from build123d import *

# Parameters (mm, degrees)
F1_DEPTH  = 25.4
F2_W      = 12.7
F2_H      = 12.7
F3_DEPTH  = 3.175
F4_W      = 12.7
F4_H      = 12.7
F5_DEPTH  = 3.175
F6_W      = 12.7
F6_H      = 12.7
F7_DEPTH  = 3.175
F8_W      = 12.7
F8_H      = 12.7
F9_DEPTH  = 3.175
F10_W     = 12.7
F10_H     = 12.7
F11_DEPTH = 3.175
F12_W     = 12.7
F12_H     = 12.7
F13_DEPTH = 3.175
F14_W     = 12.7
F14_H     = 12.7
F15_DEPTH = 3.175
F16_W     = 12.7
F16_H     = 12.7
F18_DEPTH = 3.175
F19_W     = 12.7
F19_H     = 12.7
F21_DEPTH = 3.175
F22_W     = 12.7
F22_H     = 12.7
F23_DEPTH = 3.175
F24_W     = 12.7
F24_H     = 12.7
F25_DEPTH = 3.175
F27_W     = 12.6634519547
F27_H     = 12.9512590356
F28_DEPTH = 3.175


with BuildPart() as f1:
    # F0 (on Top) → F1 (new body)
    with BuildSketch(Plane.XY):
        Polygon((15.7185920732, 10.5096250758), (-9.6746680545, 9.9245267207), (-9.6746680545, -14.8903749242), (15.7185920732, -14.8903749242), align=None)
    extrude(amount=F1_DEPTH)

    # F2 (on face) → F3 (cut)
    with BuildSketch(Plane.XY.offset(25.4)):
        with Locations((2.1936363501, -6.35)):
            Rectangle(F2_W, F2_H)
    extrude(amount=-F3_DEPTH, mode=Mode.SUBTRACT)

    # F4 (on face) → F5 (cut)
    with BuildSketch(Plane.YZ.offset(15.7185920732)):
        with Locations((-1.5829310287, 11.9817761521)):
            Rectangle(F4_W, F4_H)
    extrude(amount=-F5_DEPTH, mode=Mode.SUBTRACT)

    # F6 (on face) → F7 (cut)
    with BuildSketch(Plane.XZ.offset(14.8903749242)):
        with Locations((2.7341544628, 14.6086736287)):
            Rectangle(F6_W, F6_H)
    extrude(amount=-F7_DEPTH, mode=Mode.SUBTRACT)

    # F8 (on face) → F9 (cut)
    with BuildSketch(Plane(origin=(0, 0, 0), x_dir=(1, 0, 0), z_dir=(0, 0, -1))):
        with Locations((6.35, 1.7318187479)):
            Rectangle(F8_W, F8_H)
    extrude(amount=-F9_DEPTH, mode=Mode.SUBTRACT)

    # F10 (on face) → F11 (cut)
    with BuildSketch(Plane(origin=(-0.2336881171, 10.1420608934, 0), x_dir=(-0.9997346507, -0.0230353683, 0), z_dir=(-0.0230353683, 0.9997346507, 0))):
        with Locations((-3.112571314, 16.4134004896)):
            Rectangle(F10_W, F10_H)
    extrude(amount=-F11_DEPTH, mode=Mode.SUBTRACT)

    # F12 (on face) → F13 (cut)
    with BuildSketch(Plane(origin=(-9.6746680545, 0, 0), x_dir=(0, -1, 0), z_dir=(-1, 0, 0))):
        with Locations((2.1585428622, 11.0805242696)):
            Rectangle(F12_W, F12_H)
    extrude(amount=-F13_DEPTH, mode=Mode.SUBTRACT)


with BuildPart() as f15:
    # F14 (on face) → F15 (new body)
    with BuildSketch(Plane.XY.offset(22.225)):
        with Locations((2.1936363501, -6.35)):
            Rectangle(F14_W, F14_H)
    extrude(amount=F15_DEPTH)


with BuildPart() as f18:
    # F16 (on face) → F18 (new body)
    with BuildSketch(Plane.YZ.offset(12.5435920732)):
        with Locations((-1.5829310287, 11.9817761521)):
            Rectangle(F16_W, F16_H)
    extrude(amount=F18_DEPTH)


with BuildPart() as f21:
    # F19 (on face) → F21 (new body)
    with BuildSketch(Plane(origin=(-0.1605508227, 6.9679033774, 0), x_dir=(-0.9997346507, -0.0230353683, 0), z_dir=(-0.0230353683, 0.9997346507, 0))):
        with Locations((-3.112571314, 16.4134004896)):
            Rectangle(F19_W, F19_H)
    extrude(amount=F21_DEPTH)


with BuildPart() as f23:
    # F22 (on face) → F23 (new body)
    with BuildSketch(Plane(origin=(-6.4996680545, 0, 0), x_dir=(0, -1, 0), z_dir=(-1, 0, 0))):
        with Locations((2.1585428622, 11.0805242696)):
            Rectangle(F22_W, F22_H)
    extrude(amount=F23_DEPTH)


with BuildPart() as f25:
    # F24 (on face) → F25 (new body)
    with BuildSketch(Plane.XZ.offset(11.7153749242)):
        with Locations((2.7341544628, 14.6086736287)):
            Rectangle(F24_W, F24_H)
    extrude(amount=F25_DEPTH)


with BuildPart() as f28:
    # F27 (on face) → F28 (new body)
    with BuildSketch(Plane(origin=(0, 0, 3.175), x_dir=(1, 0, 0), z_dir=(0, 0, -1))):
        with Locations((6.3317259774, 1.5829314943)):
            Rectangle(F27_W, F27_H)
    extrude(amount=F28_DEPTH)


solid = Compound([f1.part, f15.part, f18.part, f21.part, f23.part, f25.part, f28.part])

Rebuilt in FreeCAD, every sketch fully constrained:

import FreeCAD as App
import Part
import Sketcher
from FreeCAD import Vector
Q = App.Units.Quantity


def add_polygon(sketch, points):
    """Adds a closed chain of lines whose ends are joined by coincident constraints."""
    first, n = sketch.GeometryCount, len(points)
    for a, b in zip(points, points[1:] + points[:1]):
        sketch.addGeometry(Part.LineSegment(App.Vector(*a, 0), App.Vector(*b, 0)), False)
    for i in range(n):
        sketch.addConstraint(Sketcher.Constraint("Coincident", first + i, 2, first + (i + 1) % n, 1))

doc = App.newDocument("Part")
body = doc.addObject("PartDesign::Body", "Body")

# Sketch on XY plane
sketch1 = body.newObject("Sketcher::SketchObject", "Sketch")
sketch1.AttachmentSupport = (doc.getObject("XY_Plane"), [""])
sketch1.MapMode = "FlatFace"
add_polygon(sketch1, [(15.718592, 10.509625), (-9.674668, 9.924527), (-9.674668, -14.890375), (15.718592, -14.890375)])  # lines 0-3
sketch1.addConstraint([
    Sketcher.Constraint("Vertical", 1),
    Sketcher.Constraint("Horizontal", 2),
    Sketcher.Constraint("Vertical", 3),
    Sketcher.Constraint("DistanceY", 3, 1, 3, 2, Q("1 in")),
    Sketcher.Constraint("Distance", 0, Q("1 in")),
    Sketcher.Constraint("DistanceY", 1, 2, 1, 1, Q("24.814902 mm")),
    Sketcher.Constraint("DistanceX", 0, 2, -1, 1, Q("9.674668 mm")),
    Sketcher.Constraint("DistanceY", -1, 1, 0, 2, Q("9.924527 mm")),
])
pad1 = body.newObject("PartDesign::Pad", "Pad")
pad1.Profile = sketch1
pad1.Length = Q("1 in")

# Sketch on XY plane
sketch2 = body.newObject("Sketcher::SketchObject", "Sketch001")
sketch2.AttachmentSupport = (doc.getObject("XY_Plane"), [""])
sketch2.MapMode = "FlatFace"
sketch2.AttachmentOffset = App.Placement(Vector(0, 0, 1 * 25.4), App.Rotation())
add_polygon(sketch2, [(-4.156364, 0), (-4.156364, -12.7), (8.543636, -12.7), (8.543636, 0)])  # lines 0-3
sketch2.addConstraint([
    Sketcher.Constraint("Vertical", 0),
    Sketcher.Constraint("Horizontal", 1),
    Sketcher.Constraint("Vertical", 2),
    Sketcher.Constraint("Horizontal", 3),
    Sketcher.Constraint("PointOnObject", 2, 2, -1),
    Sketcher.Constraint("Equal", 3, 0),
    Sketcher.Constraint("DistanceX", 1, 1, 1, 2, Q("0.5 in")),
    Sketcher.Constraint("DistanceX", 0, 2, -1, 1, Q("4.156364 mm")),
])
pocket1 = body.newObject("PartDesign::Pocket", "Pocket")
pocket1.Profile = sketch2
pocket1.Length = Q("0.125 in")

# Sketch on YZ plane
sketch3 = body.newObject("Sketcher::SketchObject", "Sketch002")
sketch3.AttachmentSupport = (doc.getObject("YZ_Plane"), [""])
sketch3.MapMode = "FlatFace"
sketch3.AttachmentOffset = App.Placement(Vector(0, 0, 15.718592), App.Rotation())
add_polygon(sketch3, [(-7.932931, 18.331776), (-7.932931, 5.631776), (4.767069, 5.631776), (4.767069, 18.331776)])  # lines 0-3
sketch3.addConstraint([
    Sketcher.Constraint("Vertical", 0),
    Sketcher.Constraint("Horizontal", 1),
    Sketcher.Constraint("Vertical", 2),
    Sketcher.Constraint("Horizontal", 3),
    Sketcher.Constraint("Equal", 3, 0),
    Sketcher.Constraint("DistanceX", 1, 1, 1, 2, Q("0.5 in")),
    Sketcher.Constraint("DistanceX", 0, 2, -1, 1, Q("7.932931 mm")),
    Sketcher.Constraint("DistanceY", -1, 1, 0, 2, Q("5.631776 mm")),
])
pocket2 = body.newObject("PartDesign::Pocket", "Pocket001")
pocket2.Profile = sketch3
pocket2.Length = Q("0.125 in")

# Sketch on XZ plane
sketch4 = body.newObject("Sketcher::SketchObject", "Sketch003")
sketch4.AttachmentSupport = (doc.getObject("XZ_Plane"), [""])
sketch4.MapMode = "FlatFace"
sketch4.AttachmentOffset = App.Placement(Vector(0, 0, 14.890375), App.Rotation())
add_polygon(sketch4, [(-3.615846, 20.958674), (-3.615846, 8.258674), (9.084154, 8.258674), (9.084154, 20.958674)])  # lines 0-3
sketch4.addConstraint([
    Sketcher.Constraint("Vertical", 0),
    Sketcher.Constraint("Horizontal", 1),
    Sketcher.Constraint("Vertical", 2),
    Sketcher.Constraint("Horizontal", 3),
    Sketcher.Constraint("Equal", 3, 0),
    Sketcher.Constraint("DistanceX", 1, 1, 1, 2, Q("0.5 in")),
    Sketcher.Constraint("DistanceX", 0, 2, -1, 1, Q("3.615846 mm")),
    Sketcher.Constraint("DistanceY", -1, 1, 0, 2, Q("8.258674 mm")),
])
pocket3 = body.newObject("PartDesign::Pocket", "Pocket002")
pocket3.Profile = sketch4
pocket3.Length = Q("0.125 in")

# Sketch on XY plane
sketch5 = body.newObject("Sketcher::SketchObject", "Sketch004")
sketch5.AttachmentSupport = (doc.getObject("XY_Plane"), [""])
sketch5.MapMode = "FlatFace"
add_polygon(sketch5, [(0, -8.081819), (0, 4.618181), (12.7, 4.618181), (12.7, -8.081819)])  # lines 0-3
sketch5.addConstraint([
    Sketcher.Constraint("Vertical", 0),
    Sketcher.Constraint("Horizontal", 1),
    Sketcher.Constraint("Vertical", 2),
    Sketcher.Constraint("Horizontal", 3),
    Sketcher.Constraint("PointOnObject", 0, 2, -2),
    Sketcher.Constraint("Equal", 3, 0),
    Sketcher.Constraint("DistanceX", 1, 1, 1, 2, Q("0.5 in")),
    Sketcher.Constraint("DistanceY", -1, 1, 0, 2, Q("4.618181 mm")),
])
pocket4 = body.newObject("PartDesign::Pocket", "Pocket003")
pocket4.Profile = sketch5
pocket4.Length = Q("0.125 in")
pocket4.Reversed = True

# Sketch on an angled plane
sketch6 = body.newObject("Sketcher::SketchObject", "Sketch005")
sketch6.Placement = App.Placement(Vector(-0.233688, 10.142061, 0), App.Rotation(Vector(-0.999734651, -0.023035368, 0), Vector(0, 0, 1.000000001), Vector(-0.023035368, 0.999734651, 0), "ZXY"))
add_polygon(sketch6, [(-9.462571, 22.763401), (-9.462571, 10.063401), (3.237429, 10.063401), (3.237429, 22.763401)])  # lines 0-3
sketch6.addConstraint([
    Sketcher.Constraint("Vertical", 0),
    Sketcher.Constraint("Horizontal", 1),
    Sketcher.Constraint("Vertical", 2),
    Sketcher.Constraint("Horizontal", 3),
    Sketcher.Constraint("Equal", 3, 0),
    Sketcher.Constraint("DistanceX", 1, 1, 1, 2, Q("0.5 in")),
    Sketcher.Constraint("DistanceY", -1, 1, 0, 2, Q("10.063401 mm")),
    Sketcher.Constraint("DistanceX", 0, 2, -1, 1, Q("9.462571 mm")),
])
pocket5 = body.newObject("PartDesign::Pocket", "Pocket004")
pocket5.Profile = sketch6
pocket5.Length = Q("0.125 in")

# Sketch on YZ plane
sketch7 = body.newObject("Sketcher::SketchObject", "Sketch006")
sketch7.AttachmentSupport = (doc.getObject("YZ_Plane"), [""])
sketch7.MapMode = "FlatFace"
sketch7.AttachmentOffset = App.Placement(Vector(0, 0, -9.674668), App.Rotation())
add_polygon(sketch7, [(4.191457, 17.430524), (4.191457, 4.730524), (-8.508543, 4.730524), (-8.508543, 17.430524)])  # lines 0-3
sketch7.addConstraint([
    Sketcher.Constraint("Vertical", 0),
    Sketcher.Constraint("Horizontal", 1),
    Sketcher.Constraint("Vertical", 2),
    Sketcher.Constraint("Horizontal", 3),
    Sketcher.Constraint("Equal", 3, 0),
    Sketcher.Constraint("DistanceX", 1, 2, 1, 1, Q("0.5 in")),
    Sketcher.Constraint("DistanceX", -1, 1, 0, 2, Q("4.191457 mm")),
    Sketcher.Constraint("DistanceY", -1, 1, 0, 2, Q("4.730524 mm")),
])
pocket6 = body.newObject("PartDesign::Pocket", "Pocket005")
pocket6.Profile = sketch7
pocket6.Length = Q("0.125 in")
pocket6.Reversed = True
body2 = doc.addObject("PartDesign::Body", "Body001")

# Sketch on XY plane
sketch8 = body2.newObject("Sketcher::SketchObject", "Sketch007")
sketch8.AttachmentSupport = (doc.getObject("XY_Plane001"), [""])
sketch8.MapMode = "FlatFace"
sketch8.AttachmentOffset = App.Placement(Vector(0, 0, 0.875 * 25.4), App.Rotation())
add_polygon(sketch8, [(-4.156364, 0), (-4.156364, -12.7), (8.543636, -12.7), (8.543636, 0)])  # lines 0-3
sketch8.addConstraint([
    Sketcher.Constraint("Vertical", 0),
    Sketcher.Constraint("Horizontal", 1),
    Sketcher.Constraint("Vertical", 2),
    Sketcher.Constraint("Horizontal", 3),
    Sketcher.Constraint("PointOnObject", 2, 2, -1),
    Sketcher.Constraint("Equal", 3, 0),
    Sketcher.Constraint("DistanceX", 1, 1, 1, 2, Q("0.5 in")),
    Sketcher.Constraint("DistanceX", 0, 2, -1, 1, Q("4.156364 mm")),
])
pad2 = body2.newObject("PartDesign::Pad", "Pad001")
pad2.Profile = sketch8
pad2.Length = Q("0.125 in")
body3 = doc.addObject("PartDesign::Body", "Body002")

# Sketch on YZ plane
sketch9 = body3.newObject("Sketcher::SketchObject", "Sketch008")
sketch9.AttachmentSupport = (doc.getObject("YZ_Plane002"), [""])
sketch9.MapMode = "FlatFace"
sketch9.AttachmentOffset = App.Placement(Vector(0, 0, 12.543592), App.Rotation())
add_polygon(sketch9, [(-7.932931, 18.331776), (-7.932931, 5.631776), (4.767069, 5.631776), (4.767069, 18.331776)])  # lines 0-3
sketch9.addConstraint([
    Sketcher.Constraint("Vertical", 0),
    Sketcher.Constraint("Horizontal", 1),
    Sketcher.Constraint("Vertical", 2),
    Sketcher.Constraint("Horizontal", 3),
    Sketcher.Constraint("Equal", 3, 0),
    Sketcher.Constraint("DistanceX", 1, 1, 1, 2, Q("0.5 in")),
    Sketcher.Constraint("DistanceX", 0, 2, -1, 1, Q("7.932931 mm")),
    Sketcher.Constraint("DistanceY", -1, 1, 0, 2, Q("5.631776 mm")),
])
pad3 = body3.newObject("PartDesign::Pad", "Pad002")
pad3.Profile = sketch9
pad3.Length = Q("0.125 in")
body4 = doc.addObject("PartDesign::Body", "Body003")

# Sketch on an angled plane
sketch10 = body4.newObject("Sketcher::SketchObject", "Sketch009")
sketch10.Placement = App.Placement(Vector(-0.160551, 6.967903, 0), App.Rotation(Vector(-0.999734651, -0.023035368, 0), Vector(0, 0, 1.000000001), Vector(-0.023035368, 0.999734651, 0), "ZXY"))
add_polygon(sketch10, [(-9.462571, 22.763401), (-9.462571, 10.063401), (3.237429, 10.063401), (3.237429, 22.763401)])  # lines 0-3
sketch10.addConstraint([
    Sketcher.Constraint("Vertical", 0),
    Sketcher.Constraint("Horizontal", 1),
    Sketcher.Constraint("Vertical", 2),
    Sketcher.Constraint("Horizontal", 3),
    Sketcher.Constraint("Equal", 3, 0),
    Sketcher.Constraint("DistanceX", 1, 1, 1, 2, Q("0.5 in")),
    Sketcher.Constraint("DistanceY", -1, 1, 0, 2, Q("10.063401 mm")),
    Sketcher.Constraint("DistanceX", 0, 2, -1, 1, Q("9.462571 mm")),
])
pad4 = body4.newObject("PartDesign::Pad", "Pad003")
pad4.Profile = sketch10
pad4.Length = Q("0.125 in")
body5 = doc.addObject("PartDesign::Body", "Body004")

# Sketch on YZ plane
sketch11 = body5.newObject("Sketcher::SketchObject", "Sketch010")
sketch11.AttachmentSupport = (doc.getObject("YZ_Plane004"), [""])
sketch11.MapMode = "FlatFace"
sketch11.AttachmentOffset = App.Placement(Vector(0, 0, -6.499668), App.Rotation())
add_polygon(sketch11, [(4.191457, 17.430524), (4.191457, 4.730524), (-8.508543, 4.730524), (-8.508543, 17.430524)])  # lines 0-3
sketch11.addConstraint([
    Sketcher.Constraint("Vertical", 0),
    Sketcher.Constraint("Horizontal", 1),
    Sketcher.Constraint("Vertical", 2),
    Sketcher.Constraint("Horizontal", 3),
    Sketcher.Constraint("Equal", 3, 0),
    Sketcher.Constraint("DistanceX", 1, 2, 1, 1, Q("0.5 in")),
    Sketcher.Constraint("DistanceX", -1, 1, 0, 2, Q("4.191457 mm")),
    Sketcher.Constraint("DistanceY", -1, 1, 0, 2, Q("4.730524 mm")),
])
pad5 = body5.newObject("PartDesign::Pad", "Pad004")
pad5.Profile = sketch11
pad5.Length = Q("0.125 in")
pad5.Reversed = True
body6 = doc.addObject("PartDesign::Body", "Body005")

# Sketch on XZ plane
sketch12 = body6.newObject("Sketcher::SketchObject", "Sketch011")
sketch12.AttachmentSupport = (doc.getObject("XZ_Plane005"), [""])
sketch12.MapMode = "FlatFace"
sketch12.AttachmentOffset = App.Placement(Vector(0, 0, 11.715375), App.Rotation())
add_polygon(sketch12, [(-3.615846, 20.958674), (-3.615846, 8.258674), (9.084154, 8.258674), (9.084154, 20.958674)])  # lines 0-3
sketch12.addConstraint([
    Sketcher.Constraint("Vertical", 0),
    Sketcher.Constraint("Horizontal", 1),
    Sketcher.Constraint("Vertical", 2),
    Sketcher.Constraint("Horizontal", 3),
    Sketcher.Constraint("Equal", 3, 0),
    Sketcher.Constraint("DistanceX", 1, 1, 1, 2, Q("0.5 in")),
    Sketcher.Constraint("DistanceX", 0, 2, -1, 1, Q("3.615846 mm")),
    Sketcher.Constraint("DistanceY", -1, 1, 0, 2, Q("8.258674 mm")),
])
pad6 = body6.newObject("PartDesign::Pad", "Pad005")
pad6.Profile = sketch12
pad6.Length = Q("0.125 in")
body7 = doc.addObject("PartDesign::Body", "Body006")

# Sketch on XY plane
sketch13 = body7.newObject("Sketcher::SketchObject", "Sketch012")
sketch13.AttachmentSupport = (doc.getObject("XY_Plane006"), [""])
sketch13.MapMode = "FlatFace"
sketch13.AttachmentOffset = App.Placement(Vector(0, 0, 0.125 * 25.4), App.Rotation())
add_polygon(sketch13, [(0, -8.058561), (0, 4.892698), (12.663452, 4.892698), (12.663452, -8.058561)])  # lines 0-3
sketch13.addConstraint([
    Sketcher.Constraint("Vertical", 0),
    Sketcher.Constraint("Horizontal", 1),
    Sketcher.Constraint("Vertical", 2),
    Sketcher.Constraint("Horizontal", 3),
    Sketcher.Constraint("PointOnObject", 0, 2, -2),
    Sketcher.Constraint("DistanceX", 1, 1, 1, 2, Q("12.663452 mm")),
    Sketcher.Constraint("DistanceY", 0, 1, 0, 2, Q("12.951259 mm")),
    Sketcher.Constraint("DistanceY", -1, 1, 0, 2, Q("4.892698 mm")),
])
pad7 = body7.newObject("PartDesign::Pad", "Pad006")
pad7.Profile = sketch13
pad7.Length = Q("0.125 in")
pad7.Reversed = True

doc.recompute()
